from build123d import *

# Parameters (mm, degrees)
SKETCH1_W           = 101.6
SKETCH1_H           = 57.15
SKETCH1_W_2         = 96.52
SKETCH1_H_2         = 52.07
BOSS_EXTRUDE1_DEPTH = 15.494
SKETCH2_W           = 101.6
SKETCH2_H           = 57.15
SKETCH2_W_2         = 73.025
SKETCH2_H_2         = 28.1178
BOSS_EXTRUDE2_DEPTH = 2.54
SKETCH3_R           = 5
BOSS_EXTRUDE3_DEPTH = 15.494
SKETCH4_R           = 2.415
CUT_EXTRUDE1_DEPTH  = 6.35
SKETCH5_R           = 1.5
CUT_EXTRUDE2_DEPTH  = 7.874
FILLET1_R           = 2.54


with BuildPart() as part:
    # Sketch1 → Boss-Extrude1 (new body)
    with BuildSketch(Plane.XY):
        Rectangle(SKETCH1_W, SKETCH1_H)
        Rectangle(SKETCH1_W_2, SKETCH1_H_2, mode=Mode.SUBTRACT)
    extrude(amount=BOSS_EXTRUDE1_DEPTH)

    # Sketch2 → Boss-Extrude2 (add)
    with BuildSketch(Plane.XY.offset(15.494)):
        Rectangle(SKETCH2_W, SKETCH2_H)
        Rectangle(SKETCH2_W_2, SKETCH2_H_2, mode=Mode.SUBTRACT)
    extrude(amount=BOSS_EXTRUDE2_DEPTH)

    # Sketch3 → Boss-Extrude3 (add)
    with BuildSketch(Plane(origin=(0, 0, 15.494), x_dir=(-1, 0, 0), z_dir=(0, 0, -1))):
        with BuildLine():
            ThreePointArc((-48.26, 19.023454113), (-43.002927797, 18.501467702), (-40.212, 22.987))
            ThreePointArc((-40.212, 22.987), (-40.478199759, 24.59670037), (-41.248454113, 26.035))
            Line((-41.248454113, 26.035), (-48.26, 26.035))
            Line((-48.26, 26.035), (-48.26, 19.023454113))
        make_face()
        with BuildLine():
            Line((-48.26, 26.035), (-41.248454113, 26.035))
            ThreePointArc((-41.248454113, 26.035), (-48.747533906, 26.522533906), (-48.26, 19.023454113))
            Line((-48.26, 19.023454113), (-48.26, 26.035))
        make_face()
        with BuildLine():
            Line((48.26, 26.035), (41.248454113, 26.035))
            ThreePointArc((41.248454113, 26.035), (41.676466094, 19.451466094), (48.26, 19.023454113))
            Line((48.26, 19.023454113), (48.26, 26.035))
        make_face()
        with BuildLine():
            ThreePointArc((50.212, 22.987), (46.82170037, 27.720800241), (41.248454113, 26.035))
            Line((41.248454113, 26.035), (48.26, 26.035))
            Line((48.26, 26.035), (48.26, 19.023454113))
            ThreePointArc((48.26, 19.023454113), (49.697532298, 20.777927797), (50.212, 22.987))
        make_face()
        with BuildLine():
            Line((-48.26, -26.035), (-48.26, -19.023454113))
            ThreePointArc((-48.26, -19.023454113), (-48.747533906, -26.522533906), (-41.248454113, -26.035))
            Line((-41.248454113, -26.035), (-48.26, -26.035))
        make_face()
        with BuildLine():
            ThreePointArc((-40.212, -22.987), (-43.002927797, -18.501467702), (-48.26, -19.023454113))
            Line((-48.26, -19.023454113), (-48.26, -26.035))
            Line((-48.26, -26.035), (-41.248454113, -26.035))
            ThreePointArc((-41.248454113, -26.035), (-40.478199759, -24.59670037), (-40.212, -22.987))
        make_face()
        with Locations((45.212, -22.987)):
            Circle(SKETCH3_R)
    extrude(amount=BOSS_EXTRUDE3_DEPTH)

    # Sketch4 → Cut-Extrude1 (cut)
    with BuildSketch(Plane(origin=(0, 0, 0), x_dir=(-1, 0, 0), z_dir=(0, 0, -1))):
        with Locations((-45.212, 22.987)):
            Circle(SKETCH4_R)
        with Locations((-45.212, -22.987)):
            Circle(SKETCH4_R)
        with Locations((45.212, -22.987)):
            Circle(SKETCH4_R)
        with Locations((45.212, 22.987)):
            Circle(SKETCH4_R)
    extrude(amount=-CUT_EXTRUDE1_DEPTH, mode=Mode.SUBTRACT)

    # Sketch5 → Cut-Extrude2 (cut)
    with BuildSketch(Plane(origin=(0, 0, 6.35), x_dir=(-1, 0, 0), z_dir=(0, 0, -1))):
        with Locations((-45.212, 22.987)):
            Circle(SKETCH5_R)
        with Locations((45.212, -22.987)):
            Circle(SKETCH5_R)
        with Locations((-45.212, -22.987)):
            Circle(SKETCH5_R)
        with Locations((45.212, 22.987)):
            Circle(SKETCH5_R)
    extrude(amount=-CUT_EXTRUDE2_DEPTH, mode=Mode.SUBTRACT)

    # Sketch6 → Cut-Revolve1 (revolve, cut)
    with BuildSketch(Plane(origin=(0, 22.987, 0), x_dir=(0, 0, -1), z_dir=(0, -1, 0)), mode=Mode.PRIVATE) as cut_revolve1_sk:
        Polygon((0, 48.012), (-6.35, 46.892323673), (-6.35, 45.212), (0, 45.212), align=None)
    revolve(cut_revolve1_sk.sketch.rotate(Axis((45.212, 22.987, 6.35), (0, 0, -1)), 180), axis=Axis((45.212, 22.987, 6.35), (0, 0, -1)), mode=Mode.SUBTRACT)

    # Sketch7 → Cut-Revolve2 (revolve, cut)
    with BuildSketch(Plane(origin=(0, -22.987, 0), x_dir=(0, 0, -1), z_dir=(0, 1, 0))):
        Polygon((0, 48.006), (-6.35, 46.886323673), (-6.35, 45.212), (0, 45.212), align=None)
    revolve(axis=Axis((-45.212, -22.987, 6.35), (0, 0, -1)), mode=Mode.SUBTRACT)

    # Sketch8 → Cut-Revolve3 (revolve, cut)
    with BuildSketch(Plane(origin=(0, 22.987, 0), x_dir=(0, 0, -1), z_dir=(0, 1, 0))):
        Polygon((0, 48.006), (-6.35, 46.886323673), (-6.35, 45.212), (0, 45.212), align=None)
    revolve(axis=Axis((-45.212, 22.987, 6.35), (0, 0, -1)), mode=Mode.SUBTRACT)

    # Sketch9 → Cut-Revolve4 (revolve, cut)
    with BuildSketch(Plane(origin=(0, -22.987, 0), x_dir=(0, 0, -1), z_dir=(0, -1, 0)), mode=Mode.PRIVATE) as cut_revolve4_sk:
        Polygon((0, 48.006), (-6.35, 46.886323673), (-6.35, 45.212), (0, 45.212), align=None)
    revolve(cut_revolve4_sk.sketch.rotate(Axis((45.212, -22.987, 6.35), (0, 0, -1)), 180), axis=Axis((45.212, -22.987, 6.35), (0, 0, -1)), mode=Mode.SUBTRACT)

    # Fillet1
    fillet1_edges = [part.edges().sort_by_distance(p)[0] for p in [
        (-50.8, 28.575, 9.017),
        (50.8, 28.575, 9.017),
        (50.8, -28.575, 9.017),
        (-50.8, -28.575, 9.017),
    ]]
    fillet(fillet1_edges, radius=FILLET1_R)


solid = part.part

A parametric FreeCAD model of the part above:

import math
import FreeCAD as App
import Part
import Sketcher
Q = App.Units.Quantity


def edges_at(feature, points):
    """Names of the edges that pass closest to the given points."""
    edges = feature.Shape.Edges
    near = lambda p: min(range(len(edges)), key=lambda i: edges[i].distToShape(Part.Vertex(*p))[0])
    return sorted({f"Edge{near(p) + 1}" for p in points})


def add_polygon(sketch, points):
    """Adds a closed chain of lines whose ends are joined by coincident constraints."""
    first, n = sketch.GeometryCount, len(points)
    for a, b in zip(points, points[1:] + points[:1]):
        sketch.addGeometry(Part.LineSegment(App.Vector(*a, 0), App.Vector(*b, 0)), False)
    for i in range(n):
        sketch.addConstraint(Sketcher.Constraint("Coincident", first + i, 2, first + (i + 1) % n, 1))

doc = App.newDocument("Part")
params = doc.addObject("Spreadsheet::Sheet", "Params")
for row, (alias, value) in enumerate([
    ("sketch1_width", "4 in"),
    ("sketch1_width2", "3.8 in"),
    ("sketch1_height", "2.25 in"),
    ("sketch1_height2", "2.05 in"),
    ("pad1_length", "0.61 in"),
    ("sketch2_width", "4 in"),
    ("sketch2_height", "2.25 in"),
    ("sketch2_width2", "2.875 in"),
    ("sketch2_height2", "1.107 in"),
    ("pad2_length", "0.1 in"),
    ("pad3_length", "0.61 in"),
    ("pocket1_length", "0.25 in"),
    ("pocket2_length", "0.31 in"),
    ("sketch6_height", "0.25 in"),
    ("groove_angle", "360 deg"),
    ("sketch7_width", "0.11 in"),
    ("sketch7_height", "0.25 in"),
    ("groove2_angle", "360 deg"),
    ("sketch8_width", "0.11 in"),
    ("sketch8_height", "0.25 in"),
    ("groove3_angle", "360 deg"),
    ("sketch9_width", "0.11 in"),
    ("sketch9_height", "0.25 in"),
    ("groove4_angle", "360 deg"),
    ("fillet_radius", "0.1 in"),
], start=1):
    params.set(f"A{row}", alias)
    params.set(f"B{row}", "=" + value)
    params.setAlias(f"B{row}", alias)

body = doc.addObject("PartDesign::Body", "Body")

sketch1 = doc.addObject("Sketcher::SketchObject", "Sketch")
body.addObject(sketch1)
sketch1.AttachmentSupport = (doc.XY_Plane, [""])
sketch1.MapMode = "FlatFace"
add_polygon(sketch1, [(-51, 29), (-51, -29), (51, -29), (51, 29)])
add_polygon(sketch1, [(48, -26), (-48, -26), (-48, 26), (48, 26)])
sketch1.addConstraint([
    Sketcher.Constraint("Vertical", 0),
    Sketcher.Constraint("Horizontal", 1),
    Sketcher.Constraint("Vertical", 2),
    Sketcher.Constraint("Horizontal", 3),
    Sketcher.Constraint("Horizontal", 4),
    Sketcher.Constraint("Vertical", 5),
    Sketcher.Constraint("Horizontal", 6),
    Sketcher.Constraint("Vertical", 7),
    Sketcher.Constraint("Symmetric", 0, 2, 2, 2, -1, 1),
    Sketcher.Constraint("Symmetric", 4, 2, 6, 2, -1, 1),
    Sketcher.Constraint("DistanceX", 1, 1, 1, 2, Q("4 in")),
    Sketcher.Constraint("DistanceX", 4, 2, 4, 1, Q("3.8 in")),
    Sketcher.Constraint("DistanceY", 0, 2, 0, 1, Q("2.25 in")),
    Sketcher.Constraint("DistanceY", 5, 1, 5, 2, Q("2.05 in")),
])
sketch1.setExpression("Constraints[18]", "Params.sketch1_width")
sketch1.setExpression("Constraints[19]", "Params.sketch1_width2")
sketch1.setExpression("Constraints[20]", "Params.sketch1_height")
sketch1.setExpression("Constraints[21]", "Params.sketch1_height2")
pad1 = doc.addObject("PartDesign::Pad", "Pad")
body.addObject(pad1)
pad1.Profile = sketch1
pad1.setExpression("Length", "Params.pad1_length")

sketch2 = doc.addObject("Sketcher::SketchObject", "Sketch001")
body.addObject(sketch2)
sketch2.AttachmentSupport = (doc.XY_Plane, [""])
sketch2.MapMode = "FlatFace"
sketch2.AttachmentOffset = App.Placement(App.Vector(0, 0, 0.61 * 25.4), App.Rotation())
add_polygon(sketch2, [(-51, 29), (-51, -29), (51, -29), (51, 29)])
add_polygon(sketch2, [(37, -14), (-37, -14), (-37, 14), (37, 14)])
sketch2.addConstraint([
    Sketcher.Constraint("Vertical", 0),
    Sketcher.Constraint("Horizontal", 1),
    Sketcher.Constraint("Vertical", 2),
    Sketcher.Constraint("Horizontal", 3),
    Sketcher.Constraint("Horizontal", 4),
    Sketcher.Constraint("Vertical", 5),
    Sketcher.Constraint("Horizontal", 6),
    Sketcher.Constraint("Vertical", 7),
    Sketcher.Constraint("Symmetric", 0, 2, 2, 2, -1, 1),
    Sketcher.Constraint("Symmetric", 4, 2, 6, 2, -1, 1),
    Sketcher.Constraint("DistanceX", 1, 1, 1, 2, Q("4 in")),
    Sketcher.Constraint("DistanceY", 0, 2, 0, 1, Q("2.25 in")),
    Sketcher.Constraint("DistanceX", 4, 2, 4, 1, Q("2.875 in")),
    Sketcher.Constraint("DistanceY", 5, 1, 5, 2, Q("1.107 in")),
])
sketch2.setExpression("Constraints[18]", "Params.sketch2_width")
sketch2.setExpression("Constraints[19]", "Params.sketch2_height")
sketch2.setExpression("Constraints[20]", "Params.sketch2_width2")
sketch2.setExpression("Constraints[21]", "Params.sketch2_height2")
pad2 = doc.addObject("PartDesign::Pad", "Pad001")
body.addObject(pad2)
pad2.Profile = sketch2
pad2.setExpression("Length", "Params.pad2_length")

sketch3 = doc.addObject("Sketcher::SketchObject", "Sketch002")
body.addObject(sketch3)
sketch3.AttachmentSupport = (doc.XY_Plane, [""])
sketch3.MapMode = "FlatFace"
sketch3.AttachmentOffset = App.Placement(App.Vector(0, 0, 0.61 * 25.4), App.Rotation())
sketch3.addGeometry([
    Part.ArcOfCircle(Part.Circle(App.Vector(45.2, 23, 0), App.Vector(0, 0, 1), 5), math.radians(-180), math.radians(-52)),
    Part.ArcOfCircle(Part.Circle(App.Vector(45.2, 23, 0), App.Vector(0, 0, 1), 5), math.radians(142), math.radians(180)),
    Part.ArcOfCircle(Part.Circle(App.Vector(45.2, 23, 0), App.Vector(0, 0, 1), 5), math.radians(-52), math.radians(142)),
    Part.ArcOfCircle(Part.Circle(App.Vector(-45.2, 23, 0), App.Vector(0, 0, 1), 5), math.radians(-128), math.radians(38)),
    Part.ArcOfCircle(Part.Circle(App.Vector(-45.2, 23, 0), App.Vector(0, 0, 1), 5), math.radians(-180), math.radians(-128)),
    Part.ArcOfCircle(Part.Circle(App.Vector(-45.2, 23, 0), App.Vector(0, 0, 1), 5), math.radians(38), math.radians(180)),
    Part.ArcOfCircle(Part.Circle(App.Vector(45.2, -23, 0), App.Vector(0, 0, 1), 5), math.radians(-142), math.radians(52)),
    Part.ArcOfCircle(Part.Circle(App.Vector(45.2, -23, 0), App.Vector(0, 0, 1), 5), math.radians(180), math.radians(218)),
    Part.ArcOfCircle(Part.Circle(App.Vector(45.2, -23, 0), App.Vector(0, 0, 1), 5), math.radians(52), math.radians(180)),
    Part.Circle(App.Vector(-45.2, -23, 0), App.Vector(0, 0, 1), 5),
], False)
sketch3.addConstraint([
    Sketcher.Constraint("Tangent", 0, 1, 1, 2),
    Sketcher.Constraint("Tangent", 1, 1, 2, 2),
    Sketcher.Constraint("Tangent", 2, 1, 0, 2),
    Sketcher.Constraint("Tangent", 3, 1, 4, 2),
    Sketcher.Constraint("Tangent", 4, 1, 5, 2),
    Sketcher.Constraint("Tangent", 5, 1, 3, 2),
    Sketcher.Constraint("Tangent", 6, 1, 7, 2),
    Sketcher.Constraint("Tangent", 7, 1, 8, 2),
    Sketcher.Constraint("Tangent", 8, 1, 6, 2),
    Sketcher.Constraint("Equal", 2, 3),
    Sketcher.Constraint("Equal", 5, 6),
    Sketcher.Constraint("Equal", 8, 9),
    Sketcher.Constraint("Symmetric", 3, 3, 6, 3, -1, 1),
    Sketcher.Constraint("Symmetric", 0, 3, 9, 3, -1, 1),
    Sketcher.Constraint("Symmetric", 0, 3, 3, 3, -2),
    Sketcher.Constraint("Horizontal", 5, 3, 0, 1),
    Sketcher.Constraint("Horizontal", 2, 1, 3, 1),
    Sketcher.Constraint("Horizontal", 0, 1, 4, 1),
    Sketcher.Constraint("Horizontal", 1, 1, 5, 1),
    Sketcher.Constraint("Horizontal", 9, 3, 7, 1),
    Sketcher.Constraint("Vertical", 1, 1, 6, 1),
    Sketcher.Constraint("Vertical", 2, 1, 8, 1),
    Sketcher.Constraint("DistanceX", -1, 1, 2, 1, Q("1.9 in")),
    Sketcher.Constraint("Diameter", 9, 10.0),
    Sketcher.Constraint("DistanceX", -1, 1, 0, 3, Q("1.78 in")),
    Sketcher.Constraint("DistanceY", 6, 3, 2, 3, Q("1.81 in")),
    Sketcher.Constraint("DistanceY", 0, 1, 1, 1, Q("0.12 in")),
])
pad3 = doc.addObject("PartDesign::Pad", "Pad002")
body.addObject(pad3)
pad3.Profile = sketch3
pad3.setExpression("Length", "Params.pad3_length")
pad3.Reversed = True

sketch4 = doc.addObject("Sketcher::SketchObject", "Sketch003")
body.addObject(sketch4)
sketch4.AttachmentSupport = (doc.XY_Plane, [""])
sketch4.MapMode = "FlatFace"
sketch4.addGeometry([
    Part.Circle(App.Vector(45.2, 23, 0), App.Vector(0, 0, 1), 2.4),
    Part.Circle(App.Vector(45.2, -23, 0), App.Vector(0, 0, 1), 2.4),
    Part.Circle(App.Vector(-45.2, -23, 0), App.Vector(0, 0, 1), 2.4),
    Part.Circle(App.Vector(-45.2, 23, 0), App.Vector(0, 0, 1), 2.4),
], False)
sketch4.addConstraint([
    Sketcher.Constraint("Equal", 0, 1),
    Sketcher.Constraint("Equal", 1, 2),
    Sketcher.Constraint("Equal", 2, 3),
    Sketcher.Constraint("Symmetric", 0, 3, 2, 3, -1, 1),
    Sketcher.Constraint("Symmetric", 1, 3, 3, 3, -1, 1),
    Sketcher.Constraint("Symmetric", 1, 3, 2, 3, -2),
    Sketcher.Constraint("Diameter", 0, 4.83),
    Sketcher.Constraint("DistanceX", -1, 1, 0, 3, Q("1.78 in")),
    Sketcher.Constraint("DistanceY", 1, 3, 0, 3, Q("1.81 in")),
])
pocket1 = doc.addObject("PartDesign::Pocket", "Pocket")
body.addObject(pocket1)
pocket1.Profile = sketch4
pocket1.setExpression("Length", "Params.pocket1_length")
pocket1.Reversed = True

sketch5 = doc.addObject("Sketcher::SketchObject", "Sketch004")
body.addObject(sketch5)
sketch5.AttachmentSupport = (doc.XY_Plane, [""])
sketch5.MapMode = "FlatFace"
sketch5.AttachmentOffset = App.Placement(App.Vector(0, 0, 0.25 * 25.4), App.Rotation())
sketch5.addGeometry([
    Part.Circle(App.Vector(45.2, 23, 0), App.Vector(0, 0, 1), 1.5),
    Part.Circle(App.Vector(-45.2, -23, 0), App.Vector(0, 0, 1), 1.5),
    Part.Circle(App.Vector(45.2, -23, 0), App.Vector(0, 0, 1), 1.5),
    Part.Circle(App.Vector(-45.2, 23, 0), App.Vector(0, 0, 1), 1.5),
], False)
sketch5.addConstraint([
    Sketcher.Constraint("Equal", 0, 1),
    Sketcher.Constraint("Equal", 1, 2),
    Sketcher.Constraint("Equal", 2, 3),
    Sketcher.Constraint("Symmetric", 0, 3, 1, 3, -1, 1),
    Sketcher.Constraint("Symmetric", 2, 3, 3, 3, -1, 1),
    Sketcher.Constraint("Symmetric", 1, 3, 2, 3, -2),
    Sketcher.Constraint("Diameter", 0, 3.0),
    Sketcher.Constraint("DistanceX", -1, 1, 0, 3, Q("1.78 in")),
    Sketcher.Constraint("DistanceY", 1, 3, 0, 3, Q("1.81 in")),
])
pocket2 = doc.addObject("PartDesign::Pocket", "Pocket001")
body.addObject(pocket2)
pocket2.Profile = sketch5
pocket2.setExpression("Length", "Params.pocket2_length")
pocket2.Reversed = True

sketch6 = doc.addObject("Sketcher::SketchObject", "Sketch005")
body.addObject(sketch6)
sketch6.AttachmentSupport = (doc.XZ_Plane, [""])
sketch6.MapMode = "FlatFace"
sketch6.AttachmentOffset = App.Placement(App.Vector(0, 0, -0.905 * 25.4), App.Rotation())
add_polygon(sketch6, [(48, 0), (46.9, 6.3), (45.2, 6.3), (45.2, 0)])
sketch6.addGeometry(Part.LineSegment(App.Vector(45.2, 6.3, 0), App.Vector(45.2, 0, 0)), True)
sketch6.addConstraint([
    Sketcher.Constraint("Horizontal", 1),
    Sketcher.Constraint("Vertical", 2),
    Sketcher.Constraint("Horizontal", 3),
    Sketcher.Constraint("Vertical", 4),
    Sketcher.Constraint("Coincident", 4, 1, 1, 2),
    Sketcher.Constraint("PointOnObject", 2, 2, -1),
    Sketcher.Constraint("PointOnObject", 4, 2, -1),
    Sketcher.Constraint("Angle", 0, Q("100 deg")),
    Sketcher.Constraint("DistanceY", 2, 2, 2, 1, Q("0.25 in")),
    Sketcher.Constraint("DistanceX", -1, 1, 1, 2, Q("1.78 in")),
    Sketcher.Constraint("DistanceX", 3, 1, 3, 2, 2.8),
])
sketch6.setExpression("Constraints[12]", "Params.sketch6_height")
groove = doc.addObject("PartDesign::Groove", "Groove")
body.addObject(groove)
groove.Profile = sketch6
groove.ReferenceAxis = (sketch6, ["Axis0"])
groove.setExpression("Angle", "Params.groove_angle")

sketch7 = doc.addObject("Sketcher::SketchObject", "Sketch006")
body.addObject(sketch7)
sketch7.AttachmentSupport = (doc.XZ_Plane, [""])
sketch7.MapMode = "FlatFace"
sketch7.AttachmentOffset = App.Placement(App.Vector(0, 0, 0.905 * 25.4), App.Rotation())
add_polygon(sketch7, [(-48, 0), (-46.9, 6.3), (-45.2, 6.3), (-45.2, 0)])
sketch7.addGeometry(Part.LineSegment(App.Vector(-45.2, 6.3, 0), App.Vector(-45.2, 0, 0)), True)
sketch7.addConstraint([
    Sketcher.Constraint("Horizontal", 1),
    Sketcher.Constraint("Vertical", 2),
    Sketcher.Constraint("Horizontal", 3),
    Sketcher.Constraint("Vertical", 4),
    Sketcher.Constraint("Coincident", 4, 1, 1, 2),
    Sketcher.Constraint("PointOnObject", 2, 2, -1),
    Sketcher.Constraint("PointOnObject", 4, 2, -1),
    Sketcher.Constraint("Angle", 0, Q("80 deg")),
    Sketcher.Constraint("DistanceX", 3, 2, 3, 1, Q("0.11 in")),
    Sketcher.Constraint("DistanceY", 2, 2, 2, 1, Q("0.25 in")),
    Sketcher.Constraint("DistanceX", 1, 2, -1, 1, Q("1.78 in")),
])
sketch7.setExpression("Constraints[12]", "Params.sketch7_width")
sketch7.setExpression("Constraints[13]", "Params.sketch7_height")
groove2 = doc.addObject("PartDesign::Groove", "Groove001")
body.addObject(groove2)
groove2.Profile = sketch7
groove2.ReferenceAxis = (sketch7, ["Axis0"])
groove2.setExpression("Angle", "Params.groove2_angle")

sketch8 = doc.addObject("Sketcher::SketchObject", "Sketch007")
body.addObject(sketch8)
sketch8.AttachmentSupport = (doc.XZ_Plane, [""])
sketch8.MapMode = "FlatFace"
sketch8.AttachmentOffset = App.Placement(App.Vector(0, 0, -0.905 * 25.4), App.Rotation())
add_polygon(sketch8, [(-48, 0), (-46.9, 6.3), (-45.2, 6.3), (-45.2, 0)])
sketch8.addGeometry(Part.LineSegment(App.Vector(-45.2, 6.3, 0), App.Vector(-45.2, 0, 0)), True)
sketch8.addConstraint([
    Sketcher.Constraint("Horizontal", 1),
    Sketcher.Constraint("Vertical", 2),
    Sketcher.Constraint("Horizontal", 3),
    Sketcher.Constraint("Vertical", 4),
    Sketcher.Constraint("Coincident", 4, 1, 1, 2),
    Sketcher.Constraint("PointOnObject", 2, 2, -1),
    Sketcher.Constraint("PointOnObject", 4, 2, -1),
    Sketcher.Constraint("Angle", 0, Q("80 deg")),
    Sketcher.Constraint("DistanceX", 3, 2, 3, 1, Q("0.11 in")),
    Sketcher.Constraint("DistanceY", 2, 2, 2, 1, Q("0.25 in")),
    Sketcher.Constraint("DistanceX", 1, 2, -1, 1, Q("1.78 in")),
])
sketch8.setExpression("Constraints[12]", "Params.sketch8_width")
sketch8.setExpression("Constraints[13]", "Params.sketch8_height")
groove3 = doc.addObject("PartDesign::Groove", "Groove002")
body.addObject(groove3)
groove3.Profile = sketch8
groove3.ReferenceAxis = (sketch8, ["Axis0"])
groove3.setExpression("Angle", "Params.groove3_angle")

sketch9 = doc.addObject("Sketcher::SketchObject", "Sketch008")
body.addObject(sketch9)
sketch9.AttachmentSupport = (doc.XZ_Plane, [""])
sketch9.MapMode = "FlatFace"
sketch9.AttachmentOffset = App.Placement(App.Vector(0, 0, 0.905 * 25.4), App.Rotation())
add_polygon(sketch9, [(48, 0), (46.9, 6.3), (45.2, 6.3), (45.2, 0)])
sketch9.addGeometry(Part.LineSegment(App.Vector(45.2, 6.3, 0), App.Vector(45.2, 0, 0)), True)
sketch9.addConstraint([
    Sketcher.Constraint("Horizontal", 1),
    Sketcher.Constraint("Vertical", 2),
    Sketcher.Constraint("Horizontal", 3),
    Sketcher.Constraint("Vertical", 4),
    Sketcher.Constraint("Coincident", 4, 1, 1, 2),
    Sketcher.Constraint("PointOnObject", 2, 2, -1),
    Sketcher.Constraint("PointOnObject", 4, 2, -1),
    Sketcher.Constraint("Angle", 0, Q("100 deg")),
    Sketcher.Constraint("DistanceX", 3, 1, 3, 2, Q("0.11 in")),
    Sketcher.Constraint("DistanceY", 2, 2, 2, 1, Q("0.25 in")),
    Sketcher.Constraint("DistanceX", -1, 1, 1, 2, Q("1.78 in")),
])
sketch9.setExpression("Constraints[12]", "Params.sketch9_width")
sketch9.setExpression("Constraints[13]", "Params.sketch9_height")
groove4 = doc.addObject("PartDesign::Groove", "Groove003")
body.addObject(groove4)
groove4.Profile = sketch9
groove4.ReferenceAxis = (sketch9, ["Axis0"])
groove4.setExpression("Angle", "Params.groove4_angle")
doc.recompute()

fillet = doc.addObject("PartDesign::Fillet", "Fillet")
body.addObject(fillet)
fillet.Base = (groove4, edges_at(groove4, [
    (-50.8, 28.575, 9.017),
    (50.8, 28.575, 9.017),
    (50.8, -28.575, 9.017),
    (-50.8, -28.575, 9.017),
]))
fillet.setExpression("Radius", "Params.fillet_radius")

doc.recompute()
